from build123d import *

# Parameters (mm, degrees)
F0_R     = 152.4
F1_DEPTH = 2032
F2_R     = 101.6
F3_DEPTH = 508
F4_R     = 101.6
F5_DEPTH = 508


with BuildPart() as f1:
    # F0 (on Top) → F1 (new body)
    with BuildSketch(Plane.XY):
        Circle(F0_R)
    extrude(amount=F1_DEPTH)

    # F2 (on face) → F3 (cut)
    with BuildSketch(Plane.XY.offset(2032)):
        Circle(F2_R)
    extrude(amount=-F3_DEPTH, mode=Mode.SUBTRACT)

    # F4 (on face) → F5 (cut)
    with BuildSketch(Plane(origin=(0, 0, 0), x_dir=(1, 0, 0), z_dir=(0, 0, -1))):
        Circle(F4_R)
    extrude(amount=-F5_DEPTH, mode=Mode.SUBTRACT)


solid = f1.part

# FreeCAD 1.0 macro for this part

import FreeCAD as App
import Part
import Sketcher

V = App.Vector
Q = App.Units.Quantity

doc = App.newDocument("Part")
body = doc.addObject("PartDesign::Body", "Body")

sketch1 = body.newObject("Sketcher::SketchObject", "Sketch")
sketch1.AttachmentSupport = (doc.getObject("XY_Plane"), [""])
sketch1.MapMode = "FlatFace"
sketch1.addGeometry(Part.Circle(V(0, 0, 0), V(0, 0, 1), 152), False)
sketch1.addConstraint([
    Sketcher.Constraint("Coincident", 0, 3, -1, 1),
    Sketcher.Constraint("Diameter", 0, Q("12 in")),
])
pad1 = body.newObject("PartDesign::Pad", "Pad")
pad1.Profile = sketch1
pad1.Length = Q("80 in")

sketch2 = body.newObject("Sketcher::SketchObject", "Sketch001")
sketch2.AttachmentSupport = (doc.getObject("XY_Plane"), [""])
sketch2.MapMode = "FlatFace"
sketch2.AttachmentOffset = App.Placement(V(0, 0, 80 * 25.4), App.Rotation())
sketch2.addGeometry(Part.Circle(V(0, 0, 0), V(0, 0, 1), 102), False)
sketch2.addConstraint([
    Sketcher.Constraint("Coincident", 0, 3, -1, 1),
    Sketcher.Constraint("Diameter", 0, Q("8 in")),
])
pocket1 = body.newObject("PartDesign::Pocket", "Pocket")
pocket1.Profile = sketch2
pocket1.Length = Q("20 in")

sketch3 = body.newObject("Sketcher::SketchObject", "Sketch002")
sketch3.AttachmentSupport = (doc.getObject("XY_Plane"), [""])
sketch3.MapMode = "FlatFace"
sketch3.addGeometry(Part.Circle(V(0, 0, 0), V(0, 0, 1), 102), False)
sketch3.addConstraint([
    Sketcher.Constraint("Coincident", 0, 3, -1, 1),
    Sketcher.Constraint("Diameter", 0, Q("8 in")),
])
pocket2 = body.newObject("PartDesign::Pocket", "Pocket001")
pocket2.Profile = sketch3
pocket2.Length = Q("20 in")
pocket2.Reversed = True

doc.recompute()
